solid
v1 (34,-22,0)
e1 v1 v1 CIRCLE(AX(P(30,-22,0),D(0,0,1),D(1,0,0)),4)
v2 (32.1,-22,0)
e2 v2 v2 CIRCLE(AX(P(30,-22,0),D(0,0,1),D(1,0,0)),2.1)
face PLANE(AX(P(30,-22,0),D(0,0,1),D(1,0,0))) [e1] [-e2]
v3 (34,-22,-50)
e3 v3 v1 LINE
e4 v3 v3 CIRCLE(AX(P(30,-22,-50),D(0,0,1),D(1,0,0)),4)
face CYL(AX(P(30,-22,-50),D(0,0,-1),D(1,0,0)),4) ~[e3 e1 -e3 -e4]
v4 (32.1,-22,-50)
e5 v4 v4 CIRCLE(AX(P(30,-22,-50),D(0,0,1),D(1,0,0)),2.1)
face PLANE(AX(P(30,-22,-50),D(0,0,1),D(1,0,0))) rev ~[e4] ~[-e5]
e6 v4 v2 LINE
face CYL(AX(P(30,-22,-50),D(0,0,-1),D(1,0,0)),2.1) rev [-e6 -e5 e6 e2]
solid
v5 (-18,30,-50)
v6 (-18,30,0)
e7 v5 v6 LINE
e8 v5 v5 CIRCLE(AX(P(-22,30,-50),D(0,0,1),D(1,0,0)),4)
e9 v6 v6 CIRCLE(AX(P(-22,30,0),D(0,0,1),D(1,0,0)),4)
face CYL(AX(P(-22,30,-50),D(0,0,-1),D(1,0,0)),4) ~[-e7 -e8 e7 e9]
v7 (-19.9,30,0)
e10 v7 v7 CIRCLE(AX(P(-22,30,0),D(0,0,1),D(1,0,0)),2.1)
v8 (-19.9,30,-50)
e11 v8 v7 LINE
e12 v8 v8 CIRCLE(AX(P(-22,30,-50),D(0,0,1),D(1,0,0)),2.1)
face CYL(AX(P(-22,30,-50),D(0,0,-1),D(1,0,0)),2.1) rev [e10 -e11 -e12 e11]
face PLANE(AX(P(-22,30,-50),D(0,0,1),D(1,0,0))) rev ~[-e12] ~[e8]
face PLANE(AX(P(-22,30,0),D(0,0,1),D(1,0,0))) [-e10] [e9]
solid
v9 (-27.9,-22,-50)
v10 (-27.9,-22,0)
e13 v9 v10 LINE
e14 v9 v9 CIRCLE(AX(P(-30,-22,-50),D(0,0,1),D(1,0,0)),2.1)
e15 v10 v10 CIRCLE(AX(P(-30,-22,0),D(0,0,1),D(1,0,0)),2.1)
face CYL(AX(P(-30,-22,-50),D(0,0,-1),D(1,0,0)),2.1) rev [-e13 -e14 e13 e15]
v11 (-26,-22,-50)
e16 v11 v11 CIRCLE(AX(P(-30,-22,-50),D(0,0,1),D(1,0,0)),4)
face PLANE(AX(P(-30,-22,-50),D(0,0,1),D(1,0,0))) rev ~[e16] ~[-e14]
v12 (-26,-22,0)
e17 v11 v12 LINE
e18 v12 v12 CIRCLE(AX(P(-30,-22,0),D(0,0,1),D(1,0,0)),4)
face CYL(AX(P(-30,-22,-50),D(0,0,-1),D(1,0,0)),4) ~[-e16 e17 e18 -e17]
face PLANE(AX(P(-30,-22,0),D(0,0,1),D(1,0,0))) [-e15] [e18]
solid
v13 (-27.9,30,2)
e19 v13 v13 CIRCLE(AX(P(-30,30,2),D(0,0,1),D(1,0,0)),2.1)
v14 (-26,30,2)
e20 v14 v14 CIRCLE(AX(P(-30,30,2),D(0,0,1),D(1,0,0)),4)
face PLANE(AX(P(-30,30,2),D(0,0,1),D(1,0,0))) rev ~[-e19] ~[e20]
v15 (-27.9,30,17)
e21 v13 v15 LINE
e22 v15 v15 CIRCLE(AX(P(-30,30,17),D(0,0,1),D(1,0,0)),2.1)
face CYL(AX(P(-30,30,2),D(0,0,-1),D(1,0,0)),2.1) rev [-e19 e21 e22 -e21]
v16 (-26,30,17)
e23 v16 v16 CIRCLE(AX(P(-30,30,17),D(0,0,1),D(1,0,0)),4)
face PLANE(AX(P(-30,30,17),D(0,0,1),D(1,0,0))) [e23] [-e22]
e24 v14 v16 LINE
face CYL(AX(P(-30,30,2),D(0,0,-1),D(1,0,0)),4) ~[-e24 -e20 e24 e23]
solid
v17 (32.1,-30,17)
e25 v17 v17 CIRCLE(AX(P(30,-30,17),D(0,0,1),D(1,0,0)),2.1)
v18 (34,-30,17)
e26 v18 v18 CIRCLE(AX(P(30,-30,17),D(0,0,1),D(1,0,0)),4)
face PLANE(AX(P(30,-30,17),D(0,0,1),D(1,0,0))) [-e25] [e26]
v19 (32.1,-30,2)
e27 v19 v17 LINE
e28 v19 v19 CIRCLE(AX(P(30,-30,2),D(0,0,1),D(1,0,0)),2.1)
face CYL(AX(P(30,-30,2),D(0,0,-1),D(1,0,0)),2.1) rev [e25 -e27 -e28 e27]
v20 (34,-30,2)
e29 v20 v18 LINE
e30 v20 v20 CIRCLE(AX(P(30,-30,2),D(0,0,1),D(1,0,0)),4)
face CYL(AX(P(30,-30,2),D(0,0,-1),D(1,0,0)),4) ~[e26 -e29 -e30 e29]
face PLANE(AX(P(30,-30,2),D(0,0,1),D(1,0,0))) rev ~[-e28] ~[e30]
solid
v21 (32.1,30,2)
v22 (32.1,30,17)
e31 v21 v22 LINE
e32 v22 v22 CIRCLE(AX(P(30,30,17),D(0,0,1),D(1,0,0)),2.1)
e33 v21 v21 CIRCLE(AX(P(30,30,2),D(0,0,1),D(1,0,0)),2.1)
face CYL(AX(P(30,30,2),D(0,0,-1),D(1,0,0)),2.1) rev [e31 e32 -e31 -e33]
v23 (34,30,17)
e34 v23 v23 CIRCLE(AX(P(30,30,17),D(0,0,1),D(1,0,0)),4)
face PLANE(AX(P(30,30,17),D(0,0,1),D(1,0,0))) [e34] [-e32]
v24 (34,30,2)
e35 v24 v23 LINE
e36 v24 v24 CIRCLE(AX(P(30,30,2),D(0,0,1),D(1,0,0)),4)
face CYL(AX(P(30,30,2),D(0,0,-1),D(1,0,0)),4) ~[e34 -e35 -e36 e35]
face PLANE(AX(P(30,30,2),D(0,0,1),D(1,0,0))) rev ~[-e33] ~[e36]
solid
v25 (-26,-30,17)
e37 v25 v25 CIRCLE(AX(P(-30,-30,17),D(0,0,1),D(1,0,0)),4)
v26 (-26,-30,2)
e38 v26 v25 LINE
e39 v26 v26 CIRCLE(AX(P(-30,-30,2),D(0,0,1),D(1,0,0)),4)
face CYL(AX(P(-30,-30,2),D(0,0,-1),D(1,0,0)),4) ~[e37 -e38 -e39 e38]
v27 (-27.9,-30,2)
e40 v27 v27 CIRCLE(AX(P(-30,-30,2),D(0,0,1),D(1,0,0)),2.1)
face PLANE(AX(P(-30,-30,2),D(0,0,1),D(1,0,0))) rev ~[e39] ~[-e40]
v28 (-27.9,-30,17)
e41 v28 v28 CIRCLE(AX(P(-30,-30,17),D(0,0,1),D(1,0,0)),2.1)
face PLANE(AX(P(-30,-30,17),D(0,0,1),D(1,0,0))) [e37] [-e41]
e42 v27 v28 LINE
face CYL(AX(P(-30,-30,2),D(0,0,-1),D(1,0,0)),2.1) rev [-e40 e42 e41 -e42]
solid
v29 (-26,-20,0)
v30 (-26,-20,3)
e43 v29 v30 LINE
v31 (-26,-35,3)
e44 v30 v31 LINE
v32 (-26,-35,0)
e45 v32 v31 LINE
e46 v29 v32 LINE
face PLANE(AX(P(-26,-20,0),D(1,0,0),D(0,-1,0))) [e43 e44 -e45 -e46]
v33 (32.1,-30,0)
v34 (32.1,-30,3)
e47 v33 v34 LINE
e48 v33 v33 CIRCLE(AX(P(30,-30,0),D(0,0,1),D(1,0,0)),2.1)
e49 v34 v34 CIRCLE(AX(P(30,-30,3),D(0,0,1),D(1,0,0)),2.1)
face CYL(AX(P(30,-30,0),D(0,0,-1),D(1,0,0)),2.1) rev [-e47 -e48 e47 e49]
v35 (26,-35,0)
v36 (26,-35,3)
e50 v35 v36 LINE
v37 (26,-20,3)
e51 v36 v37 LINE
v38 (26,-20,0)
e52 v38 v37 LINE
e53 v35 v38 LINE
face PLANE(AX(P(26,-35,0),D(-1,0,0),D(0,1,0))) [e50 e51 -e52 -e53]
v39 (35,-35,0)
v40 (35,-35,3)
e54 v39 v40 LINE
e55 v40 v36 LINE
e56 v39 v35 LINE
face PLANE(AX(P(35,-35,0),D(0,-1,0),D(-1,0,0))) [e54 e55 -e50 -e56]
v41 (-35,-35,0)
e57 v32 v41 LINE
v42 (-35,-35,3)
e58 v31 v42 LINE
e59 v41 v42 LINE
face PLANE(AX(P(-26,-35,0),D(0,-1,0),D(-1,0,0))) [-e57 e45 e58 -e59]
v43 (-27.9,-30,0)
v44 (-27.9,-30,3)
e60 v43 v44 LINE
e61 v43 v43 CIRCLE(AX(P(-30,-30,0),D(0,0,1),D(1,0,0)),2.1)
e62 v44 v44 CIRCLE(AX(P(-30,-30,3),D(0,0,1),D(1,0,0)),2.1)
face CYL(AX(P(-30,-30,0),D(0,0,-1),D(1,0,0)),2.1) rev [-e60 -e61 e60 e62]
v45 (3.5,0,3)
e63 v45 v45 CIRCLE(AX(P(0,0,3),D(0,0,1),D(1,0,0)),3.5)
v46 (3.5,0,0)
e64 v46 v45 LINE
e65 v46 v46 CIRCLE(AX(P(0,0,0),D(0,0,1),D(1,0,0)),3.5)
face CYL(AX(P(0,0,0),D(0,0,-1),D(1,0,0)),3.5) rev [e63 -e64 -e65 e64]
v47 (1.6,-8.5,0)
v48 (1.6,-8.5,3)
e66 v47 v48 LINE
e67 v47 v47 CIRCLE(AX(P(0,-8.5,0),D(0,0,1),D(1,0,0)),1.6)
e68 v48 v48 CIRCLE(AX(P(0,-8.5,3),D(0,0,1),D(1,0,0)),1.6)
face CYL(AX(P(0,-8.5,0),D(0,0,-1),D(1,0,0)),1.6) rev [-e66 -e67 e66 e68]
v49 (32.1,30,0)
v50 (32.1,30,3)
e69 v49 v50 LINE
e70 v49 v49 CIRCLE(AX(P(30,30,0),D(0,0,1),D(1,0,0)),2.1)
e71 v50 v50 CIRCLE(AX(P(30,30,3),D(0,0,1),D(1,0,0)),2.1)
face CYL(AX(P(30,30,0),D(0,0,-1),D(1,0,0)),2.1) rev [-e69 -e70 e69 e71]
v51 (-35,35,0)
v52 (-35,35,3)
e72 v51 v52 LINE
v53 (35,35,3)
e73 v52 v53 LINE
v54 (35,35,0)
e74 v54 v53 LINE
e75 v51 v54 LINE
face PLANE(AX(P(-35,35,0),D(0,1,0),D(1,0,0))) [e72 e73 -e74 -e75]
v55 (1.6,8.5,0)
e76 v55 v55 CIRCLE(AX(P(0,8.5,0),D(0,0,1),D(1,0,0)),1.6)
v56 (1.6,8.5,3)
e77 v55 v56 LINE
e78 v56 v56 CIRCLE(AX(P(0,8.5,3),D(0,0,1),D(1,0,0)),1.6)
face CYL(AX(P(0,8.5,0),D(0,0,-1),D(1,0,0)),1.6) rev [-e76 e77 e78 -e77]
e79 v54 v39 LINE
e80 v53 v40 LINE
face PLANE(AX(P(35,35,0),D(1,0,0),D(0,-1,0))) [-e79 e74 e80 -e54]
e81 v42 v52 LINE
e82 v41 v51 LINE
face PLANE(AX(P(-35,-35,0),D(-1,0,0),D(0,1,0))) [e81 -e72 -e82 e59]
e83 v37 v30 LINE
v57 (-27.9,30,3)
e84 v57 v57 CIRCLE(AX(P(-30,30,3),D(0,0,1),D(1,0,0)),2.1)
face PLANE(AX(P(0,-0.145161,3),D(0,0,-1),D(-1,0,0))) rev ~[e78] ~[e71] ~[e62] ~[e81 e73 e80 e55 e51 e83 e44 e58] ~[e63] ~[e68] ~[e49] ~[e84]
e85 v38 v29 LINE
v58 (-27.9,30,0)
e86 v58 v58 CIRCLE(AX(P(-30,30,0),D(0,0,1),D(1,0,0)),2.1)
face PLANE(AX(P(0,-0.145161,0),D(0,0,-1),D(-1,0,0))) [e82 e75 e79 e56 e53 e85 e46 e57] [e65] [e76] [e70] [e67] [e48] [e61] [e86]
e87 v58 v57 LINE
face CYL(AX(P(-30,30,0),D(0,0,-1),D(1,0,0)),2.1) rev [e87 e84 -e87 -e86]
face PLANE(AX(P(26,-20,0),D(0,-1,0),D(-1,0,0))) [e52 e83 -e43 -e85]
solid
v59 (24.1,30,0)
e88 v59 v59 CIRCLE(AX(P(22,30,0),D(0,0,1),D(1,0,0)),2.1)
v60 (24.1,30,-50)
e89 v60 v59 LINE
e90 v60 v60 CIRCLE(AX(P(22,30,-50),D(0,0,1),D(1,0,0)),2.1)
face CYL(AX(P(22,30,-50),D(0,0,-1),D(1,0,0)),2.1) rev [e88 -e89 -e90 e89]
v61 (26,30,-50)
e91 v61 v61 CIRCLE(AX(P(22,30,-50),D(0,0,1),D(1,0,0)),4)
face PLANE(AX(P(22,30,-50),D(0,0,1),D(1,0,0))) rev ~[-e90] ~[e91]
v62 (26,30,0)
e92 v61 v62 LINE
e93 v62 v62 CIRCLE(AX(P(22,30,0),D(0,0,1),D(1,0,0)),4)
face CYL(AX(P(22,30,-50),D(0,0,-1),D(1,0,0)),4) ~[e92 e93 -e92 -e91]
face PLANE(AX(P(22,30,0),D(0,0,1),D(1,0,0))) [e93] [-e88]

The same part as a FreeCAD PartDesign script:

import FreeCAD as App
import Part
import Sketcher
from FreeCAD import Vector

doc = App.newDocument("Part")
body = doc.addObject("PartDesign::Body", "Body")

# Sketch on XY plane
sketch1 = body.newObject("Sketcher::SketchObject", "Sketch")
sketch1.AttachmentSupport = (doc.getObject("XY_Plane"), [""])
sketch1.MapMode = "FlatFace"
sketch1.addGeometry(Part.LineSegment(Vector(35, 35, 0), Vector(-35, 35, 0)), False)
sketch1.addGeometry(Part.LineSegment(Vector(-35, 35, 0), Vector(-35, -35, 0)), False)
sketch1.addGeometry(Part.LineSegment(Vector(-35, -35, 0), Vector(-26, -35, 0)), False)
sketch1.addGeometry(Part.LineSegment(Vector(-26, -35, 0), Vector(-26, -20, 0)), False)
sketch1.addGeometry(Part.LineSegment(Vector(-26, -20, 0), Vector(26, -20, 0)), False)
sketch1.addGeometry(Part.LineSegment(Vector(26, -20, 0), Vector(26, -35, 0)), False)
sketch1.addGeometry(Part.LineSegment(Vector(26, -35, 0), Vector(35, -35, 0)), False)
sketch1.addGeometry(Part.LineSegment(Vector(35, -35, 0), Vector(35, 35, 0)), False)
sketch1.addGeometry(Part.Circle(Vector(30, -30, 0), Vector(0, 0, 1), 2.1), False)
sketch1.addGeometry(Part.Circle(Vector(-30, -30, 0), Vector(0, 0, 1), 2.1), False)
sketch1.addGeometry(Part.Circle(Vector(0, -8.5, 0), Vector(0, 0, 1), 1.6), False)
sketch1.addGeometry(Part.Circle(Vector(30, 30, 0), Vector(0, 0, 1), 2.1), False)
sketch1.addGeometry(Part.Circle(Vector(0, 0, 0), Vector(0, 0, 1), 3.5), False)
sketch1.addGeometry(Part.Circle(Vector(0, 8.5, 0), Vector(0, 0, 1), 1.6), False)
sketch1.addGeometry(Part.Circle(Vector(-30, 30, 0), Vector(0, 0, 1), 2.1), False)
sketch1.addConstraint(Sketcher.Constraint("Coincident", 0, 2, 1, 1))
sketch1.addConstraint(Sketcher.Constraint("Coincident", 1, 2, 2, 1))
sketch1.addConstraint(Sketcher.Constraint("Coincident", 2, 2, 3, 1))
sketch1.addConstraint(Sketcher.Constraint("Coincident", 3, 2, 4, 1))
sketch1.addConstraint(Sketcher.Constraint("Coincident", 4, 2, 5, 1))
sketch1.addConstraint(Sketcher.Constraint("Coincident", 5, 2, 6, 1))
sketch1.addConstraint(Sketcher.Constraint("Coincident", 6, 2, 7, 1))
sketch1.addConstraint(Sketcher.Constraint("Coincident", 7, 2, 0, 1))
sketch1.addConstraint(Sketcher.Constraint("Horizontal", 0))
sketch1.addConstraint(Sketcher.Constraint("Vertical", 1))
sketch1.addConstraint(Sketcher.Constraint("Horizontal", 2))
sketch1.addConstraint(Sketcher.Constraint("Vertical", 3))
sketch1.addConstraint(Sketcher.Constraint("Horizontal", 4))
sketch1.addConstraint(Sketcher.Constraint("Vertical", 5))
sketch1.addConstraint(Sketcher.Constraint("Horizontal", 6))
sketch1.addConstraint(Sketcher.Constraint("Vertical", 7))
sketch1.addConstraint(Sketcher.Constraint("Coincident", 12, 3, -1, 1))
sketch1.addConstraint(Sketcher.Constraint("Equal", 8, 9))
sketch1.addConstraint(Sketcher.Constraint("Equal", 9, 11))
sketch1.addConstraint(Sketcher.Constraint("Equal", 10, 13))
sketch1.addConstraint(Sketcher.Constraint("Equal", 11, 14))
sketch1.addConstraint(Sketcher.Constraint("Symmetric", 9, 3, 11, 3, -1, 1))
sketch1.addConstraint(Sketcher.Constraint("Symmetric", 10, 3, 13, 3, -1, 1))
sketch1.addConstraint(Sketcher.Constraint("Symmetric", 8, 3, 14, 3, -1, 1))
sketch1.addConstraint(Sketcher.Constraint("Symmetric", 0, 2, 6, 2, -1, 1))
sketch1.addConstraint(Sketcher.Constraint("Symmetric", 8, 3, 9, 3, -2))
sketch1.addConstraint(Sketcher.Constraint("Symmetric", 2, 2, 5, 2, -2))
sketch1.addConstraint(Sketcher.Constraint("PointOnObject", 10, 3, -2))
sketch1.addConstraint(Sketcher.Constraint("Equal", 0, 1))
sketch1.addConstraint(Sketcher.Constraint("Diameter", 12, 7.0))
sketch1.addConstraint(Sketcher.Constraint("Diameter", 8, 4.2))
sketch1.addConstraint(Sketcher.Constraint("Diameter", 10, 3.2))
sketch1.addConstraint(Sketcher.Constraint("DistanceX", 0, 2, 0, 1, 70.0))
sketch1.addConstraint(Sketcher.Constraint("DistanceX", 2, 1, 2, 2, 9.0))
sketch1.addConstraint(Sketcher.Constraint("DistanceY", 3, 1, 3, 2, 15.0))
sketch1.addConstraint(Sketcher.Constraint("DistanceX", -1, 1, 8, 3, 30.0))
sketch1.addConstraint(Sketcher.Constraint("DistanceY", 8, 3, -1, 1, 30.0))
sketch1.addConstraint(Sketcher.Constraint("DistanceY", 10, 3, 13, 3, 17.0))
pad1 = body.newObject("PartDesign::Pad", "Pad")
pad1.Profile = sketch1
pad1.Length = 3
body2 = doc.addObject("PartDesign::Body", "Body001")
body2.AllowCompound = True

# Sketch on XY plane
sketch2 = body2.newObject("Sketcher::SketchObject", "Sketch001")
sketch2.AttachmentSupport = (doc.getObject("XY_Plane001"), [""])
sketch2.MapMode = "FlatFace"
sketch2.AttachmentOffset = App.Placement(Vector(0, 0, 2), App.Rotation())
sketch2.addGeometry(Part.Circle(Vector(-30, 30, 0), Vector(0, 0, 1), 4), False)
sketch2.addGeometry(Part.Circle(Vector(-30, 30, 0), Vector(0, 0, 1), 2.1), False)
sketch2.addGeometry(Part.Circle(Vector(30, 30, 0), Vector(0, 0, 1), 4), False)
sketch2.addGeometry(Part.Circle(Vector(30, 30, 0), Vector(0, 0, 1), 2.1), False)
sketch2.addGeometry(Part.Circle(Vector(30, -30, 0), Vector(0, 0, 1), 4), False)
sketch2.addGeometry(Part.Circle(Vector(30, -30, 0), Vector(0, 0, 1), 2.1), False)
sketch2.addGeometry(Part.Circle(Vector(-30, -30, 0), Vector(0, 0, 1), 4), False)
sketch2.addGeometry(Part.Circle(Vector(-30, -30, 0), Vector(0, 0, 1), 2.1), False)
sketch2.addConstraint(Sketcher.Constraint("Coincident", 1, 3, 0, 3))
sketch2.addConstraint(Sketcher.Constraint("Coincident", 3, 3, 2, 3))
sketch2.addConstraint(Sketcher.Constraint("Coincident", 5, 3, 4, 3))
sketch2.addConstraint(Sketcher.Constraint("Coincident", 7, 3, 6, 3))
sketch2.addConstraint(Sketcher.Constraint("Equal", 0, 2))
sketch2.addConstraint(Sketcher.Constraint("Equal", 1, 3))
sketch2.addConstraint(Sketcher.Constraint("Equal", 2, 4))
sketch2.addConstraint(Sketcher.Constraint("Equal", 3, 5))
sketch2.addConstraint(Sketcher.Constraint("Equal", 4, 6))
sketch2.addConstraint(Sketcher.Constraint("Equal", 5, 7))
sketch2.addConstraint(Sketcher.Constraint("Symmetric", 0, 3, 4, 3, -1, 1))
sketch2.addConstraint(Sketcher.Constraint("Symmetric", 2, 3, 6, 3, -1, 1))
sketch2.addConstraint(Sketcher.Constraint("Symmetric", 0, 3, 2, 3, -2))
sketch2.addConstraint(Sketcher.Constraint("Diameter", 0, 8.0))
sketch2.addConstraint(Sketcher.Constraint("Diameter", 1, 4.2))
sketch2.addConstraint(Sketcher.Constraint("DistanceX", 0, 3, -1, 1, 30.0))
sketch2.addConstraint(Sketcher.Constraint("DistanceY", -1, 1, 0, 3, 30.0))
pad2 = body2.newObject("PartDesign::Pad", "Pad001")
pad2.Profile = sketch2
pad2.Length = 15
body3 = doc.addObject("PartDesign::Body", "Body002")
body3.AllowCompound = True

# Sketch on XY plane
sketch3 = body3.newObject("Sketcher::SketchObject", "Sketch002")
sketch3.AttachmentSupport = (doc.getObject("XY_Plane002"), [""])
sketch3.MapMode = "FlatFace"
sketch3.AttachmentOffset = App.Placement(Vector(0, 0, -50), App.Rotation())
sketch3.addGeometry(Part.Circle(Vector(-22, 30, 0), Vector(0, 0, 1), 4), False)
sketch3.addGeometry(Part.Circle(Vector(-22, 30, 0), Vector(0, 0, 1), 2.1), False)
sketch3.addGeometry(Part.Circle(Vector(22, 30, 0), Vector(0, 0, 1), 4), False)
sketch3.addGeometry(Part.Circle(Vector(22, 30, 0), Vector(0, 0, 1), 2.1), False)
sketch3.addGeometry(Part.Circle(Vector(30, -22, 0), Vector(0, 0, 1), 4), False)
sketch3.addGeometry(Part.Circle(Vector(30, -22, 0), Vector(0, 0, 1), 2.1), False)
sketch3.addGeometry(Part.Circle(Vector(-30, -22, 0), Vector(0, 0, 1), 4), False)
sketch3.addGeometry(Part.Circle(Vector(-30, -22, 0), Vector(0, 0, 1), 2.1), False)
sketch3.addConstraint(Sketcher.Constraint("Coincident", 1, 3, 0, 3))
sketch3.addConstraint(Sketcher.Constraint("Coincident", 3, 3, 2, 3))
sketch3.addConstraint(Sketcher.Constraint("Coincident", 5, 3, 4, 3))
sketch3.addConstraint(Sketcher.Constraint("Coincident", 7, 3, 6, 3))
sketch3.addConstraint(Sketcher.Constraint("Equal", 0, 2))
sketch3.addConstraint(Sketcher.Constraint("Equal", 1, 3))
sketch3.addConstraint(Sketcher.Constraint("Equal", 2, 4))
sketch3.addConstraint(Sketcher.Constraint("Equal", 3, 5))
sketch3.addConstraint(Sketcher.Constraint("Equal", 4, 6))
sketch3.addConstraint(Sketcher.Constraint("Equal", 5, 7))
sketch3.addConstraint(Sketcher.Constraint("Symmetric", 0, 3, 2, 3, -2))
sketch3.addConstraint(Sketcher.Constraint("Symmetric", 4, 3, 6, 3, -2))
sketch3.addConstraint(Sketcher.Constraint("Diameter", 0, 8.0))
sketch3.addConstraint(Sketcher.Constraint("Diameter", 1, 4.2))
sketch3.addConstraint(Sketcher.Constraint("DistanceX", 0, 3, -1, 1, 22.0))
sketch3.addConstraint(Sketcher.Constraint("DistanceY", -1, 1, 0, 3, 30.0))
sketch3.addConstraint(Sketcher.Constraint("DistanceX", -1, 1, 4, 3, 30.0))
sketch3.addConstraint(Sketcher.Constraint("DistanceY", 4, 3, -1, 1, 22.0))
pad3 = body3.newObject("PartDesign::Pad", "Pad002")
pad3.Profile = sketch3
pad3.Length = 50

doc.recompute()
